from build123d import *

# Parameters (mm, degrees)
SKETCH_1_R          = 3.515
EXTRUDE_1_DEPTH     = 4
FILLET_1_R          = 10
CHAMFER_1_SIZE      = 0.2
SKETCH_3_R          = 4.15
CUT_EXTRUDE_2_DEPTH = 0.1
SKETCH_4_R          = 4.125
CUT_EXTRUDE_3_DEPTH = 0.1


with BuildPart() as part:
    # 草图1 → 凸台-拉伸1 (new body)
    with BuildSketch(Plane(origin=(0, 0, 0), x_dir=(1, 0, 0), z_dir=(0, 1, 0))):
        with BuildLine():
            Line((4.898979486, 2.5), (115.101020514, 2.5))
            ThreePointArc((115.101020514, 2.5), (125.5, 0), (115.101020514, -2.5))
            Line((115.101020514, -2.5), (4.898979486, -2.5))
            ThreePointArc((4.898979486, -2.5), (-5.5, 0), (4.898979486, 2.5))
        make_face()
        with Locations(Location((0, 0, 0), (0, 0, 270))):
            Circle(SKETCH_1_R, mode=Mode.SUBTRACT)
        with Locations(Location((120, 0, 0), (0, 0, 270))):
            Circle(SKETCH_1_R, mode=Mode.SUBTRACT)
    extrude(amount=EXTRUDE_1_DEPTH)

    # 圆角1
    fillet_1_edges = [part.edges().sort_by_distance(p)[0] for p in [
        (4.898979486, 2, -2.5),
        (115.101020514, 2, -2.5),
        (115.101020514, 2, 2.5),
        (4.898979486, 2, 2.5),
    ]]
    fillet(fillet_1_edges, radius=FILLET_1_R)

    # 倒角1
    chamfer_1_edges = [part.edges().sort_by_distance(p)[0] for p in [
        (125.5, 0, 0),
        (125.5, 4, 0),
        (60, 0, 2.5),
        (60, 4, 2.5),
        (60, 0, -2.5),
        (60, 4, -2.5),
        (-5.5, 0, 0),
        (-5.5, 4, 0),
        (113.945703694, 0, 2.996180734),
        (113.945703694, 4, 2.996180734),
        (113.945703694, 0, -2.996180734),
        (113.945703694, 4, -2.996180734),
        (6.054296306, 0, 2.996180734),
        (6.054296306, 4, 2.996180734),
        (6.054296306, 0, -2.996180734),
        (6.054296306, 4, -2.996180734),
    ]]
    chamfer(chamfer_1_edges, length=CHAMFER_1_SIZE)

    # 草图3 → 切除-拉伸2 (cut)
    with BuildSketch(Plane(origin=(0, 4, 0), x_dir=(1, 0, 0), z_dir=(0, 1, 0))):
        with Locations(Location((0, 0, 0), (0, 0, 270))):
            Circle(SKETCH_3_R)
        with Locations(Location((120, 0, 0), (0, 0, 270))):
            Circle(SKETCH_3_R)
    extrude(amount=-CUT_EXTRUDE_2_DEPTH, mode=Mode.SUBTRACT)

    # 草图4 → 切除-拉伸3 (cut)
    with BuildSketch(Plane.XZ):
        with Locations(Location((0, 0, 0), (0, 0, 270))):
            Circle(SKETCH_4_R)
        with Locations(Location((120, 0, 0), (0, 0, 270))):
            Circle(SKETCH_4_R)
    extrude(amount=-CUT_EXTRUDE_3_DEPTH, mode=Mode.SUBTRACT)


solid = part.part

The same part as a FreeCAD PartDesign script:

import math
import FreeCAD as App
import Part
import Sketcher


def edges_at(feature, points):
    """Names of the edges that pass closest to the given points."""
    edges = feature.Shape.Edges
    near = lambda p: min(range(len(edges)), key=lambda i: edges[i].distToShape(Part.Vertex(*p))[0])
    return sorted({f"Edge{near(p) + 1}" for p in points})

doc = App.newDocument("Part")
body = doc.addObject("PartDesign::Body", "Body")

# Sketch on XZ plane
sketch1 = doc.addObject("Sketcher::SketchObject", "Sketch")
body.addObject(sketch1)
sketch1.AttachmentSupport = (doc.XZ_Plane, [""])
sketch1.MapMode = "FlatFace"
sketch1.addGeometry([
    Part.LineSegment(App.Vector(115.1, -2.5, 0), App.Vector(4.9, -2.5, 0)),  # 0
    Part.ArcOfCircle(Part.Circle(App.Vector(0, 0, 0), App.Vector(0, 0, 1), 5.5), math.radians(27), math.radians(333)),  # 1
    Part.LineSegment(App.Vector(4.9, 2.5, 0), App.Vector(115.1, 2.5, 0)),  # 2
    Part.ArcOfCircle(Part.Circle(App.Vector(120, 0, 0), App.Vector(0, 0, 1), 5.5), math.radians(-153), math.radians(153)),  # 3
    Part.Circle(App.Vector(120, 0, 0), App.Vector(0, 0, 1), 3.5),  # 4
    Part.Circle(App.Vector(0, 0, 0), App.Vector(0, 0, 1), 3.5),  # 5
], False)
sketch1.addConstraint([
    Sketcher.Constraint("Coincident", 0, 2, 1, 2),
    Sketcher.Constraint("Coincident", 1, 1, 2, 1),
    Sketcher.Constraint("Coincident", 2, 2, 3, 2),
    Sketcher.Constraint("Coincident", 3, 1, 0, 1),
    Sketcher.Constraint("Horizontal", 0),
    Sketcher.Constraint("Horizontal", 2),
    Sketcher.Constraint("Coincident", 1, 3, -1, 1),
    Sketcher.Constraint("Coincident", 5, 3, -1, 1),
    Sketcher.Constraint("Coincident", 4, 3, 3, 3),
    Sketcher.Constraint("Equal", 1, 3),
    Sketcher.Constraint("Equal", 4, 5),
    Sketcher.Constraint("Symmetric", 2, 2, 3, 1, -1),
    Sketcher.Constraint("Radius", 1, 5.5),
    Sketcher.Constraint("Diameter", 4, 7.03),
    Sketcher.Constraint("DistanceX", -1, 1, 3, 3, 120.0),
    Sketcher.Constraint("DistanceY", 0, 2, 1, 1, 5.0),
])
pad1 = doc.addObject("PartDesign::Pad", "Pad")
body.addObject(pad1)
pad1.Profile = sketch1
pad1.Length = 4
pad1.Reversed = True
doc.recompute()

fillet = doc.addObject("PartDesign::Fillet", "Fillet")
body.addObject(fillet)
fillet.Base = (pad1, edges_at(pad1, [
    (4.899, 2, -2.5),
    (115.101, 2, -2.5),
    (115.101, 2, 2.5),
    (4.899, 2, 2.5),
]))
fillet.Radius = 10
doc.recompute()

chamfer = doc.addObject("PartDesign::Chamfer", "Chamfer")
body.addObject(chamfer)
chamfer.Base = (fillet, edges_at(fillet, [
    (125.5, 0, 0),
    (125.5, 4, 0),
    (60, 0, 2.5),
    (60, 4, 2.5),
    (60, 0, -2.5),
    (60, 4, -2.5),
    (-5.5, 0, 0),
    (-5.5, 4, 0),
    (113.946, 0, 2.996),
    (113.946, 4, 2.996),
    (113.946, 0, -2.996),
    (113.946, 4, -2.996),
    (6.054, 0, 2.996),
    (6.054, 4, 2.996),
    (6.054, 0, -2.996),
    (6.054, 4, -2.996),
]))
chamfer.Size = 0.2

# Sketch on XZ plane
sketch2 = doc.addObject("Sketcher::SketchObject", "Sketch001")
body.addObject(sketch2)
sketch2.AttachmentSupport = (doc.XZ_Plane, [""])
sketch2.MapMode = "FlatFace"
sketch2.AttachmentOffset = App.Placement(App.Vector(0, 0, -4), App.Rotation())
sketch2.addGeometry([
    Part.Circle(App.Vector(0, 0, 0), App.Vector(0, 0, 1), 4.2),
    Part.Circle(App.Vector(120, 0, 0), App.Vector(0, 0, 1), 4.2),
], False)
sketch2.addConstraint([
    Sketcher.Constraint("Coincident", 0, 3, -1, 1),
    Sketcher.Constraint("Equal", 0, 1),
    Sketcher.Constraint("PointOnObject", 1, 3, -1),
    Sketcher.Constraint("Diameter", 0, 8.3),
    Sketcher.Constraint("DistanceX", -1, 1, 1, 3, 120.0),
])
pocket1 = doc.addObject("PartDesign::Pocket", "Pocket")
body.addObject(pocket1)
pocket1.Profile = sketch2
pocket1.Length = 0.1
pocket1.Reversed = True

# Sketch on XZ plane
sketch3 = doc.addObject("Sketcher::SketchObject", "Sketch002")
body.addObject(sketch3)
sketch3.AttachmentSupport = (doc.XZ_Plane, [""])
sketch3.MapMode = "FlatFace"
sketch3.addGeometry([
    Part.Circle(App.Vector(0, 0, 0), App.Vector(0, 0, 1), 4.1),
    Part.Circle(App.Vector(120, 0, 0), App.Vector(0, 0, 1), 4.1),
], False)
sketch3.addConstraint([
    Sketcher.Constraint("Coincident", 0, 3, -1, 1),
    Sketcher.Constraint("Equal", 0, 1),
    Sketcher.Constraint("PointOnObject", 1, 3, -1),
    Sketcher.Constraint("Diameter", 0, 8.25),
    Sketcher.Constraint("DistanceX", -1, 1, 1, 3, 120.0),
])
pocket2 = doc.addObject("PartDesign::Pocket", "Pocket001")
body.addObject(pocket2)
pocket2.Profile = sketch3
pocket2.Length = 0.1

doc.recompute()
